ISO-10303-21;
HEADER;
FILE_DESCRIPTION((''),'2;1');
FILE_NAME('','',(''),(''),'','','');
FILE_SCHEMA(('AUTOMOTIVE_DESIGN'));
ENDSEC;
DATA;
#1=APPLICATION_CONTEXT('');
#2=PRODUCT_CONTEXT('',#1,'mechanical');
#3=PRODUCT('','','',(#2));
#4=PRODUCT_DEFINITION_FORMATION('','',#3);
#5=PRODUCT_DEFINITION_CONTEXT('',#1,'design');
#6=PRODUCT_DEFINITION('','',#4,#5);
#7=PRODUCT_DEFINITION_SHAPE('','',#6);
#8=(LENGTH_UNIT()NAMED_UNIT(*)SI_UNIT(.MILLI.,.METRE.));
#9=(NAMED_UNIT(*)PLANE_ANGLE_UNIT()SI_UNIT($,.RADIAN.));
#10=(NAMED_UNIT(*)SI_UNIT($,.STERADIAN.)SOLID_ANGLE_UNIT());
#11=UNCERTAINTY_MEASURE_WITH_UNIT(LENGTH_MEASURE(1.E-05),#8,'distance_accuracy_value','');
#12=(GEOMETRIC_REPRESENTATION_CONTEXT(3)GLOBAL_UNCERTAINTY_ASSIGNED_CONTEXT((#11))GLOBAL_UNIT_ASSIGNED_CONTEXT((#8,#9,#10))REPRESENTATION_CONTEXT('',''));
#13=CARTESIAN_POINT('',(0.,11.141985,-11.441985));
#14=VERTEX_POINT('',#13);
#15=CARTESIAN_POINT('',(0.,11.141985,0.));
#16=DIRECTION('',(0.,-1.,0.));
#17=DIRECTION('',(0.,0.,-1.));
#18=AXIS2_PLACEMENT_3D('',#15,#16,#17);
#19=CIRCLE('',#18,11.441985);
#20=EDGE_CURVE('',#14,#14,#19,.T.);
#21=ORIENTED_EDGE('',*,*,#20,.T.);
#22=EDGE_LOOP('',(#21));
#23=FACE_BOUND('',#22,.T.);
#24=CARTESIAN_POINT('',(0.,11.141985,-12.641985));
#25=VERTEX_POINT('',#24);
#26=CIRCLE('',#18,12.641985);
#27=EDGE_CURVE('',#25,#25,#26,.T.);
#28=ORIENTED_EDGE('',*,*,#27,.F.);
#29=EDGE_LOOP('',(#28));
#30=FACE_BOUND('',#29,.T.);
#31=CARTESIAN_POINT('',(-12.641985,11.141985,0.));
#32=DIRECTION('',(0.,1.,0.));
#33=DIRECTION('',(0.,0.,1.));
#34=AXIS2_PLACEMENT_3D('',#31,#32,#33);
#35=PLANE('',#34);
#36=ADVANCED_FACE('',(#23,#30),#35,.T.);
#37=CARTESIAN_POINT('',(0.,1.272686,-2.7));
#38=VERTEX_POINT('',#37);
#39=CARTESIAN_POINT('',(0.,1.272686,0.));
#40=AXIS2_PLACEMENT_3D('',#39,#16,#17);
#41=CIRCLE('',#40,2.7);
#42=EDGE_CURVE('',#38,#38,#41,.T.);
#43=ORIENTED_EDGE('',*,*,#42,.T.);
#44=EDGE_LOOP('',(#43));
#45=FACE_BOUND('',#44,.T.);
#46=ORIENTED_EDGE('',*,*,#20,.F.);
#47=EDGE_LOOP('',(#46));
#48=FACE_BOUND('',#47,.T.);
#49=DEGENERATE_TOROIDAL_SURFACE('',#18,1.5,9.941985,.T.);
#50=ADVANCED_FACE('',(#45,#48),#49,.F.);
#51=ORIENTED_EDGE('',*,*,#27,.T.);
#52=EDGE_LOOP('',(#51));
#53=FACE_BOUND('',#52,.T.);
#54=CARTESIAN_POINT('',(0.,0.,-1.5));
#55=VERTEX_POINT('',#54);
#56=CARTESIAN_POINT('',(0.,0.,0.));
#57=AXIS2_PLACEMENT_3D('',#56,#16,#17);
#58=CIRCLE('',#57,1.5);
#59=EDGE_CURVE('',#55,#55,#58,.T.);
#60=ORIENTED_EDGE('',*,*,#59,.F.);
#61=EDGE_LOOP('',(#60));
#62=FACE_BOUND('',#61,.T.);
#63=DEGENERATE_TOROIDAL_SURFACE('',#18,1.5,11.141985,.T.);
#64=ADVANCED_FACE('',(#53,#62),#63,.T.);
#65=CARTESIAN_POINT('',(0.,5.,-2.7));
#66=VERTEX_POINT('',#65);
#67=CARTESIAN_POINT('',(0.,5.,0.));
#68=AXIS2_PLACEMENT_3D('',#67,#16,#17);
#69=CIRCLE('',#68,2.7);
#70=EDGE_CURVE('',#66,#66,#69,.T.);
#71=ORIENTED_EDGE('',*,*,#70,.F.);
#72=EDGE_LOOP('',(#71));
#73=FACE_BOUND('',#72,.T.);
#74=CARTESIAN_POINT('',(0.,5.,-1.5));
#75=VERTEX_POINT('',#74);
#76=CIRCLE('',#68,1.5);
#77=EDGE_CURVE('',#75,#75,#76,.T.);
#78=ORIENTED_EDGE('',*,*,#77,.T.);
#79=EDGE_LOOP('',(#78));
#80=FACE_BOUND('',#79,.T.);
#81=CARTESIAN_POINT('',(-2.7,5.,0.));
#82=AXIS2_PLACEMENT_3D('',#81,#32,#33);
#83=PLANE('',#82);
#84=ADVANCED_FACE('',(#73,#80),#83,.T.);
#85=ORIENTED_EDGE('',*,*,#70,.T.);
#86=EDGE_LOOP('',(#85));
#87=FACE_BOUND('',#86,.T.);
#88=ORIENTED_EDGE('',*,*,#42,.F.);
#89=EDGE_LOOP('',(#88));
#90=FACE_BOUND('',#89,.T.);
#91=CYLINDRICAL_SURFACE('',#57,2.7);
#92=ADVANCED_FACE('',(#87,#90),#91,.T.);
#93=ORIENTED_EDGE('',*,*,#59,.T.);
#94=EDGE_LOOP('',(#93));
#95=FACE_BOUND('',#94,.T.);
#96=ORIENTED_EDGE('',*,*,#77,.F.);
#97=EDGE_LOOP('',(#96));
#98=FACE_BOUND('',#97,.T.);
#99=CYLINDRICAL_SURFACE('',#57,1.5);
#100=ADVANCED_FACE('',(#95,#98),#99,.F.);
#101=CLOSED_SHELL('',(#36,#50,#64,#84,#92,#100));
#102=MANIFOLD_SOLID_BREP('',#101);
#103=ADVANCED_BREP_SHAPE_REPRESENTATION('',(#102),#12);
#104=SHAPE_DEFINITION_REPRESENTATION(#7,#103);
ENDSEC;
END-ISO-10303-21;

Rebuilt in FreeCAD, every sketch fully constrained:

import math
import FreeCAD as App
import Part
import Sketcher
from FreeCAD import Vector
Q = App.Units.Quantity

doc = App.newDocument("Part")
body = doc.addObject("PartDesign::Body", "Body")

# Sketch on XY plane
sketch1 = body.newObject("Sketcher::SketchObject", "Sketch")
sketch1.AttachmentSupport = (doc.getObject("XY_Plane"), [""])
sketch1.MapMode = "FlatFace"
sketch1.addGeometry([
    Part.LineSegment(Vector(-1.5, 0, 0), Vector(-1.5, 5, 0)),  # 0
    Part.LineSegment(Vector(-1.5, 5, 0), Vector(-2.7, 5, 0)),  # 1
    Part.LineSegment(Vector(-2.7, 5, 0), Vector(-2.7, 1.3, 0)),  # 2
    Part.ArcOfCircle(Part.Circle(Vector(-1.5, 11.1, 0), Vector(0, 0, 1), 9.9), math.radians(-180), math.radians(-97)),  # 3
    Part.LineSegment(Vector(-11.4, 11.1, 0), Vector(-12.6, 11.1, 0)),  # 4
    Part.ArcOfCircle(Part.Circle(Vector(-1.5, 11.1, 0), Vector(0, 0, 1), 11.1), math.radians(-180), math.radians(-90)),  # 5
], False)
sketch1.addConstraint([
    Sketcher.Constraint("Coincident", 0, 2, 1, 1),
    Sketcher.Constraint("Coincident", 1, 2, 2, 1),
    Sketcher.Constraint("Coincident", 2, 2, 3, 2),
    Sketcher.Constraint("Coincident", 3, 1, 4, 1),
    Sketcher.Constraint("Coincident", 4, 2, 5, 1),
    Sketcher.Constraint("Coincident", 5, 2, 0, 1),
    Sketcher.Constraint("Vertical", 0),
    Sketcher.Constraint("Horizontal", 1),
    Sketcher.Constraint("Vertical", 2),
    Sketcher.Constraint("Horizontal", 4),
    Sketcher.Constraint("Coincident", 5, 3, 3, 3),
    Sketcher.Constraint("PointOnObject", 5, 2, -1),
    Sketcher.Constraint("Horizontal", 5, 3, 3, 1),
    Sketcher.Constraint("Vertical", 5, 3, 0, 2),
    Sketcher.Constraint("Equal", 1, 4),
    Sketcher.Constraint("DistanceY", 0, 1, 0, 2, Q("5 mm")),
    Sketcher.Constraint("DistanceX", 1, 2, 1, 1, Q("1.2 mm")),
    Sketcher.Constraint("DistanceX", 3, 3, -1, 1, Q("1.5 mm")),
    Sketcher.Constraint("Radius", 3, Q("9.941985 mm")),
])
revolution = body.newObject("PartDesign::Revolution", "Revolution")
revolution.Profile = sketch1
revolution.ReferenceAxis = (sketch1, ["V_Axis"])
revolution.Angle = 360

doc.recompute()
